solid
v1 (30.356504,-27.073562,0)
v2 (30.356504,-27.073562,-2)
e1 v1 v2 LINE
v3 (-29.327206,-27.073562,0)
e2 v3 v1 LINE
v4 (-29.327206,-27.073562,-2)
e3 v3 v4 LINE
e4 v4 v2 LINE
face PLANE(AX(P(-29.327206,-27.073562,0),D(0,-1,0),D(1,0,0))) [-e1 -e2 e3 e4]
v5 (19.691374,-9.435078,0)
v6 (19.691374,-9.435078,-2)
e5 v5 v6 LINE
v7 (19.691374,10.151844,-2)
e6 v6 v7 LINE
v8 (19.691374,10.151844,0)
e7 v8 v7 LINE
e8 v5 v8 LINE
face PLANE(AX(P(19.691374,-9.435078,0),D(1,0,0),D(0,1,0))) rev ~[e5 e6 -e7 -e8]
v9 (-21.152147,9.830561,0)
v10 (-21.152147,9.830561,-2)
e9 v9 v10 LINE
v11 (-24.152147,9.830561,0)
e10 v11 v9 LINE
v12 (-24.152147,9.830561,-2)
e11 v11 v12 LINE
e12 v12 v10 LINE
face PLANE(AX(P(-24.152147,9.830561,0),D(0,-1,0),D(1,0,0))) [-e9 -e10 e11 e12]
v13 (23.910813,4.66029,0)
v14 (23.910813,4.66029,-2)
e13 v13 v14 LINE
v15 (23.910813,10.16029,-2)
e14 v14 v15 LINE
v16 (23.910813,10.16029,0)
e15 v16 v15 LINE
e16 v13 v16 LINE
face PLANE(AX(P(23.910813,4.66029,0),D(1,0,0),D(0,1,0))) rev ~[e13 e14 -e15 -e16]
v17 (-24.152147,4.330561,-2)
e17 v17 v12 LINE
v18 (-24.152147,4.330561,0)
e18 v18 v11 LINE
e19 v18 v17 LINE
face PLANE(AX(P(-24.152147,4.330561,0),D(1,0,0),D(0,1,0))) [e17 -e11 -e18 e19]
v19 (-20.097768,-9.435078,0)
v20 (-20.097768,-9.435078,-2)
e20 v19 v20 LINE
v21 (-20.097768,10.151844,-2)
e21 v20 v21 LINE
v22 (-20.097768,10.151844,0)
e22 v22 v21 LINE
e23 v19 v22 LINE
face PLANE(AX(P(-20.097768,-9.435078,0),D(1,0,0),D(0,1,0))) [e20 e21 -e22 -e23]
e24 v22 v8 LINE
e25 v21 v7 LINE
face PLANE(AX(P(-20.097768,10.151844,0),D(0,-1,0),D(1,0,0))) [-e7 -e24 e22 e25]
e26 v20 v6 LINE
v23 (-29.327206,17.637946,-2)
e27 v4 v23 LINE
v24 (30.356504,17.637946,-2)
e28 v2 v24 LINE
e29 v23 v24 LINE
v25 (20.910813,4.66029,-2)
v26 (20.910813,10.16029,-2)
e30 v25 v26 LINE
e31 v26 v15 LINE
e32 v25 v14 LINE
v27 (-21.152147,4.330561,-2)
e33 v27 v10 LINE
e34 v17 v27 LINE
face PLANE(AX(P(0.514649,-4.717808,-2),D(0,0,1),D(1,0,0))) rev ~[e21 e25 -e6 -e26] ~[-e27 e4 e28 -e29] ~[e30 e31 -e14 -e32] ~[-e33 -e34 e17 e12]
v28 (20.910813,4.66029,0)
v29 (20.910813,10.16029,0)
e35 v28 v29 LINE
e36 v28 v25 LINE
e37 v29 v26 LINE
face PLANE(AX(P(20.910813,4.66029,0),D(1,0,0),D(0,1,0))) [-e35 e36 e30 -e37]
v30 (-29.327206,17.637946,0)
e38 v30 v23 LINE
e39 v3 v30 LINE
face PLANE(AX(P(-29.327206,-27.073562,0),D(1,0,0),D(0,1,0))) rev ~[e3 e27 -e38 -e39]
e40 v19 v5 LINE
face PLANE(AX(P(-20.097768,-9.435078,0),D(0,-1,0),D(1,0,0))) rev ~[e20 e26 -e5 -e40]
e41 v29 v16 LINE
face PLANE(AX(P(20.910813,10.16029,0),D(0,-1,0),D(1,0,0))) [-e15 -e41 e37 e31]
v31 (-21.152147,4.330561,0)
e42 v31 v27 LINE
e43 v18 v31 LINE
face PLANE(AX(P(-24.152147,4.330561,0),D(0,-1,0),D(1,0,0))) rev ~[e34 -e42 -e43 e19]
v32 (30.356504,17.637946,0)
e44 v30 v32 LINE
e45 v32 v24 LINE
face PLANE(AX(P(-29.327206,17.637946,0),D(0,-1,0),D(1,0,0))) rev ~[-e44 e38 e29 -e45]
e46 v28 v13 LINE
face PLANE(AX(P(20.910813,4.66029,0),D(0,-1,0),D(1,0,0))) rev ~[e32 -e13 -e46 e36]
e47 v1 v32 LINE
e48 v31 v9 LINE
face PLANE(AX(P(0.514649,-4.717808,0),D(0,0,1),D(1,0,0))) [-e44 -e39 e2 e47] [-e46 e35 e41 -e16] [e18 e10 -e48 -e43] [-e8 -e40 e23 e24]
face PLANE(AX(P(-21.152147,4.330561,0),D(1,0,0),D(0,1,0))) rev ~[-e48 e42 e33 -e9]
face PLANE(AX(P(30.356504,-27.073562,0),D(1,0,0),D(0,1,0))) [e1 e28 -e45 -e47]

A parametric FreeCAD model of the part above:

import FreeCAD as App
import Part
import Sketcher

doc = App.newDocument("Part")
body = doc.addObject("PartDesign::Body", "Body")

# Sketch on XY plane
sketch1 = body.newObject("Sketcher::SketchObject", "Sketch")
sketch1.AttachmentSupport = (doc.getObject("XY_Plane"), [""])
sketch1.MapMode = "FlatFace"
sketch1.addGeometry([
    Part.LineSegment(App.Vector(-29.327206, 17.637946, 0), App.Vector(-29.327206, -27.073562, 0)),  # 0
    Part.LineSegment(App.Vector(-29.327206, -27.073562, 0), App.Vector(30.356504, -27.073562, 0)),  # 1
    Part.LineSegment(App.Vector(30.356504, -27.073562, 0), App.Vector(30.356504, 17.637946, 0)),  # 2
    Part.LineSegment(App.Vector(30.356504, 17.637946, 0), App.Vector(-29.327206, 17.637946, 0)),  # 3
    Part.LineSegment(App.Vector(19.691374, -9.435078, 0), App.Vector(-20.097768, -9.435078, 0)),  # 4
    Part.LineSegment(App.Vector(-20.097768, -9.435078, 0), App.Vector(-20.097768, 10.151844, 0)),  # 5
    Part.LineSegment(App.Vector(-20.097768, 10.151844, 0), App.Vector(19.691374, 10.151844, 0)),  # 6
    Part.LineSegment(App.Vector(19.691374, 10.151844, 0), App.Vector(19.691374, -9.435078, 0)),  # 7
    Part.LineSegment(App.Vector(-21.152147, 4.330561, 0), App.Vector(-24.152147, 4.330561, 0)),  # 8
    Part.LineSegment(App.Vector(-24.152147, 4.330561, 0), App.Vector(-24.152147, 9.830561, 0)),  # 9
    Part.LineSegment(App.Vector(-24.152147, 9.830561, 0), App.Vector(-21.152147, 9.830561, 0)),  # 10
    Part.LineSegment(App.Vector(-21.152147, 9.830561, 0), App.Vector(-21.152147, 4.330561, 0)),  # 11
    Part.LineSegment(App.Vector(23.910813, 4.66029, 0), App.Vector(20.910813, 4.66029, 0)),  # 12
    Part.LineSegment(App.Vector(20.910813, 4.66029, 0), App.Vector(20.910813, 10.16029, 0)),  # 13
    Part.LineSegment(App.Vector(20.910813, 10.16029, 0), App.Vector(23.910813, 10.16029, 0)),  # 14
    Part.LineSegment(App.Vector(23.910813, 10.16029, 0), App.Vector(23.910813, 4.66029, 0)),  # 15
], False)
sketch1.addConstraint([
    Sketcher.Constraint("Coincident", 0, 2, 1, 1),
    Sketcher.Constraint("Coincident", 1, 2, 2, 1),
    Sketcher.Constraint("Coincident", 2, 2, 3, 1),
    Sketcher.Constraint("Coincident", 3, 2, 0, 1),
    Sketcher.Constraint("Coincident", 4, 2, 5, 1),
    Sketcher.Constraint("Coincident", 5, 2, 6, 1),
    Sketcher.Constraint("Coincident", 6, 2, 7, 1),
    Sketcher.Constraint("Coincident", 7, 2, 4, 1),
    Sketcher.Constraint("Coincident", 8, 2, 9, 1),
    Sketcher.Constraint("Coincident", 9, 2, 10, 1),
    Sketcher.Constraint("Coincident", 10, 2, 11, 1),
    Sketcher.Constraint("Coincident", 11, 2, 8, 1),
    Sketcher.Constraint("Coincident", 12, 2, 13, 1),
    Sketcher.Constraint("Coincident", 13, 2, 14, 1),
    Sketcher.Constraint("Coincident", 14, 2, 15, 1),
    Sketcher.Constraint("Coincident", 15, 2, 12, 1),
    Sketcher.Constraint("Vertical", 0),
    Sketcher.Constraint("Horizontal", 1),
    Sketcher.Constraint("Vertical", 2),
    Sketcher.Constraint("Horizontal", 3),
    Sketcher.Constraint("Horizontal", 4),
    Sketcher.Constraint("Vertical", 5),
    Sketcher.Constraint("Horizontal", 6),
    Sketcher.Constraint("Vertical", 7),
    Sketcher.Constraint("Horizontal", 8),
    Sketcher.Constraint("Vertical", 9),
    Sketcher.Constraint("Horizontal", 10),
    Sketcher.Constraint("Vertical", 11),
    Sketcher.Constraint("Horizontal", 12),
    Sketcher.Constraint("Vertical", 13),
    Sketcher.Constraint("Horizontal", 14),
    Sketcher.Constraint("Vertical", 15),
    Sketcher.Constraint("Equal", 10, 12),
    Sketcher.Constraint("Equal", 11, 13),
    Sketcher.Constraint("DistanceX", 8, 2, 8, 1, 3.0),
    Sketcher.Constraint("DistanceY", 9, 1, 9, 2, 5.5),
    Sketcher.Constraint("DistanceX", 1, 1, 1, 2, 59.68371),
    Sketcher.Constraint("DistanceX", 4, 2, 4, 1, 39.789142),
    Sketcher.Constraint("DistanceY", 5, 2, 3, 2, 7.486102),
    Sketcher.Constraint("DistanceY", 0, 2, 0, 1, 44.711508),
    Sketcher.Constraint("DistanceY", 5, 1, 5, 2, 19.586922),
    Sketcher.Constraint("DistanceY", 0, 2, -1, 1, 27.073562),
    Sketcher.Constraint("DistanceY", -1, 1, 8, 2, 4.330561),
    Sketcher.Constraint("DistanceY", -1, 1, 12, 2, 4.66029),
    Sketcher.Constraint("DistanceX", 0, 2, 4, 2, 9.229438),
    Sketcher.Constraint("DistanceX", 8, 2, 5, 2, 4.054379),
    Sketcher.Constraint("DistanceX", 6, 2, 12, 2, 1.219439),
    Sketcher.Constraint("DistanceX", 0, 2, -1, 1, 29.327206),
])
pad1 = body.newObject("PartDesign::Pad", "Pad")
pad1.Profile = sketch1
pad1.Length = 2
pad1.Reversed = True

doc.recompute()
